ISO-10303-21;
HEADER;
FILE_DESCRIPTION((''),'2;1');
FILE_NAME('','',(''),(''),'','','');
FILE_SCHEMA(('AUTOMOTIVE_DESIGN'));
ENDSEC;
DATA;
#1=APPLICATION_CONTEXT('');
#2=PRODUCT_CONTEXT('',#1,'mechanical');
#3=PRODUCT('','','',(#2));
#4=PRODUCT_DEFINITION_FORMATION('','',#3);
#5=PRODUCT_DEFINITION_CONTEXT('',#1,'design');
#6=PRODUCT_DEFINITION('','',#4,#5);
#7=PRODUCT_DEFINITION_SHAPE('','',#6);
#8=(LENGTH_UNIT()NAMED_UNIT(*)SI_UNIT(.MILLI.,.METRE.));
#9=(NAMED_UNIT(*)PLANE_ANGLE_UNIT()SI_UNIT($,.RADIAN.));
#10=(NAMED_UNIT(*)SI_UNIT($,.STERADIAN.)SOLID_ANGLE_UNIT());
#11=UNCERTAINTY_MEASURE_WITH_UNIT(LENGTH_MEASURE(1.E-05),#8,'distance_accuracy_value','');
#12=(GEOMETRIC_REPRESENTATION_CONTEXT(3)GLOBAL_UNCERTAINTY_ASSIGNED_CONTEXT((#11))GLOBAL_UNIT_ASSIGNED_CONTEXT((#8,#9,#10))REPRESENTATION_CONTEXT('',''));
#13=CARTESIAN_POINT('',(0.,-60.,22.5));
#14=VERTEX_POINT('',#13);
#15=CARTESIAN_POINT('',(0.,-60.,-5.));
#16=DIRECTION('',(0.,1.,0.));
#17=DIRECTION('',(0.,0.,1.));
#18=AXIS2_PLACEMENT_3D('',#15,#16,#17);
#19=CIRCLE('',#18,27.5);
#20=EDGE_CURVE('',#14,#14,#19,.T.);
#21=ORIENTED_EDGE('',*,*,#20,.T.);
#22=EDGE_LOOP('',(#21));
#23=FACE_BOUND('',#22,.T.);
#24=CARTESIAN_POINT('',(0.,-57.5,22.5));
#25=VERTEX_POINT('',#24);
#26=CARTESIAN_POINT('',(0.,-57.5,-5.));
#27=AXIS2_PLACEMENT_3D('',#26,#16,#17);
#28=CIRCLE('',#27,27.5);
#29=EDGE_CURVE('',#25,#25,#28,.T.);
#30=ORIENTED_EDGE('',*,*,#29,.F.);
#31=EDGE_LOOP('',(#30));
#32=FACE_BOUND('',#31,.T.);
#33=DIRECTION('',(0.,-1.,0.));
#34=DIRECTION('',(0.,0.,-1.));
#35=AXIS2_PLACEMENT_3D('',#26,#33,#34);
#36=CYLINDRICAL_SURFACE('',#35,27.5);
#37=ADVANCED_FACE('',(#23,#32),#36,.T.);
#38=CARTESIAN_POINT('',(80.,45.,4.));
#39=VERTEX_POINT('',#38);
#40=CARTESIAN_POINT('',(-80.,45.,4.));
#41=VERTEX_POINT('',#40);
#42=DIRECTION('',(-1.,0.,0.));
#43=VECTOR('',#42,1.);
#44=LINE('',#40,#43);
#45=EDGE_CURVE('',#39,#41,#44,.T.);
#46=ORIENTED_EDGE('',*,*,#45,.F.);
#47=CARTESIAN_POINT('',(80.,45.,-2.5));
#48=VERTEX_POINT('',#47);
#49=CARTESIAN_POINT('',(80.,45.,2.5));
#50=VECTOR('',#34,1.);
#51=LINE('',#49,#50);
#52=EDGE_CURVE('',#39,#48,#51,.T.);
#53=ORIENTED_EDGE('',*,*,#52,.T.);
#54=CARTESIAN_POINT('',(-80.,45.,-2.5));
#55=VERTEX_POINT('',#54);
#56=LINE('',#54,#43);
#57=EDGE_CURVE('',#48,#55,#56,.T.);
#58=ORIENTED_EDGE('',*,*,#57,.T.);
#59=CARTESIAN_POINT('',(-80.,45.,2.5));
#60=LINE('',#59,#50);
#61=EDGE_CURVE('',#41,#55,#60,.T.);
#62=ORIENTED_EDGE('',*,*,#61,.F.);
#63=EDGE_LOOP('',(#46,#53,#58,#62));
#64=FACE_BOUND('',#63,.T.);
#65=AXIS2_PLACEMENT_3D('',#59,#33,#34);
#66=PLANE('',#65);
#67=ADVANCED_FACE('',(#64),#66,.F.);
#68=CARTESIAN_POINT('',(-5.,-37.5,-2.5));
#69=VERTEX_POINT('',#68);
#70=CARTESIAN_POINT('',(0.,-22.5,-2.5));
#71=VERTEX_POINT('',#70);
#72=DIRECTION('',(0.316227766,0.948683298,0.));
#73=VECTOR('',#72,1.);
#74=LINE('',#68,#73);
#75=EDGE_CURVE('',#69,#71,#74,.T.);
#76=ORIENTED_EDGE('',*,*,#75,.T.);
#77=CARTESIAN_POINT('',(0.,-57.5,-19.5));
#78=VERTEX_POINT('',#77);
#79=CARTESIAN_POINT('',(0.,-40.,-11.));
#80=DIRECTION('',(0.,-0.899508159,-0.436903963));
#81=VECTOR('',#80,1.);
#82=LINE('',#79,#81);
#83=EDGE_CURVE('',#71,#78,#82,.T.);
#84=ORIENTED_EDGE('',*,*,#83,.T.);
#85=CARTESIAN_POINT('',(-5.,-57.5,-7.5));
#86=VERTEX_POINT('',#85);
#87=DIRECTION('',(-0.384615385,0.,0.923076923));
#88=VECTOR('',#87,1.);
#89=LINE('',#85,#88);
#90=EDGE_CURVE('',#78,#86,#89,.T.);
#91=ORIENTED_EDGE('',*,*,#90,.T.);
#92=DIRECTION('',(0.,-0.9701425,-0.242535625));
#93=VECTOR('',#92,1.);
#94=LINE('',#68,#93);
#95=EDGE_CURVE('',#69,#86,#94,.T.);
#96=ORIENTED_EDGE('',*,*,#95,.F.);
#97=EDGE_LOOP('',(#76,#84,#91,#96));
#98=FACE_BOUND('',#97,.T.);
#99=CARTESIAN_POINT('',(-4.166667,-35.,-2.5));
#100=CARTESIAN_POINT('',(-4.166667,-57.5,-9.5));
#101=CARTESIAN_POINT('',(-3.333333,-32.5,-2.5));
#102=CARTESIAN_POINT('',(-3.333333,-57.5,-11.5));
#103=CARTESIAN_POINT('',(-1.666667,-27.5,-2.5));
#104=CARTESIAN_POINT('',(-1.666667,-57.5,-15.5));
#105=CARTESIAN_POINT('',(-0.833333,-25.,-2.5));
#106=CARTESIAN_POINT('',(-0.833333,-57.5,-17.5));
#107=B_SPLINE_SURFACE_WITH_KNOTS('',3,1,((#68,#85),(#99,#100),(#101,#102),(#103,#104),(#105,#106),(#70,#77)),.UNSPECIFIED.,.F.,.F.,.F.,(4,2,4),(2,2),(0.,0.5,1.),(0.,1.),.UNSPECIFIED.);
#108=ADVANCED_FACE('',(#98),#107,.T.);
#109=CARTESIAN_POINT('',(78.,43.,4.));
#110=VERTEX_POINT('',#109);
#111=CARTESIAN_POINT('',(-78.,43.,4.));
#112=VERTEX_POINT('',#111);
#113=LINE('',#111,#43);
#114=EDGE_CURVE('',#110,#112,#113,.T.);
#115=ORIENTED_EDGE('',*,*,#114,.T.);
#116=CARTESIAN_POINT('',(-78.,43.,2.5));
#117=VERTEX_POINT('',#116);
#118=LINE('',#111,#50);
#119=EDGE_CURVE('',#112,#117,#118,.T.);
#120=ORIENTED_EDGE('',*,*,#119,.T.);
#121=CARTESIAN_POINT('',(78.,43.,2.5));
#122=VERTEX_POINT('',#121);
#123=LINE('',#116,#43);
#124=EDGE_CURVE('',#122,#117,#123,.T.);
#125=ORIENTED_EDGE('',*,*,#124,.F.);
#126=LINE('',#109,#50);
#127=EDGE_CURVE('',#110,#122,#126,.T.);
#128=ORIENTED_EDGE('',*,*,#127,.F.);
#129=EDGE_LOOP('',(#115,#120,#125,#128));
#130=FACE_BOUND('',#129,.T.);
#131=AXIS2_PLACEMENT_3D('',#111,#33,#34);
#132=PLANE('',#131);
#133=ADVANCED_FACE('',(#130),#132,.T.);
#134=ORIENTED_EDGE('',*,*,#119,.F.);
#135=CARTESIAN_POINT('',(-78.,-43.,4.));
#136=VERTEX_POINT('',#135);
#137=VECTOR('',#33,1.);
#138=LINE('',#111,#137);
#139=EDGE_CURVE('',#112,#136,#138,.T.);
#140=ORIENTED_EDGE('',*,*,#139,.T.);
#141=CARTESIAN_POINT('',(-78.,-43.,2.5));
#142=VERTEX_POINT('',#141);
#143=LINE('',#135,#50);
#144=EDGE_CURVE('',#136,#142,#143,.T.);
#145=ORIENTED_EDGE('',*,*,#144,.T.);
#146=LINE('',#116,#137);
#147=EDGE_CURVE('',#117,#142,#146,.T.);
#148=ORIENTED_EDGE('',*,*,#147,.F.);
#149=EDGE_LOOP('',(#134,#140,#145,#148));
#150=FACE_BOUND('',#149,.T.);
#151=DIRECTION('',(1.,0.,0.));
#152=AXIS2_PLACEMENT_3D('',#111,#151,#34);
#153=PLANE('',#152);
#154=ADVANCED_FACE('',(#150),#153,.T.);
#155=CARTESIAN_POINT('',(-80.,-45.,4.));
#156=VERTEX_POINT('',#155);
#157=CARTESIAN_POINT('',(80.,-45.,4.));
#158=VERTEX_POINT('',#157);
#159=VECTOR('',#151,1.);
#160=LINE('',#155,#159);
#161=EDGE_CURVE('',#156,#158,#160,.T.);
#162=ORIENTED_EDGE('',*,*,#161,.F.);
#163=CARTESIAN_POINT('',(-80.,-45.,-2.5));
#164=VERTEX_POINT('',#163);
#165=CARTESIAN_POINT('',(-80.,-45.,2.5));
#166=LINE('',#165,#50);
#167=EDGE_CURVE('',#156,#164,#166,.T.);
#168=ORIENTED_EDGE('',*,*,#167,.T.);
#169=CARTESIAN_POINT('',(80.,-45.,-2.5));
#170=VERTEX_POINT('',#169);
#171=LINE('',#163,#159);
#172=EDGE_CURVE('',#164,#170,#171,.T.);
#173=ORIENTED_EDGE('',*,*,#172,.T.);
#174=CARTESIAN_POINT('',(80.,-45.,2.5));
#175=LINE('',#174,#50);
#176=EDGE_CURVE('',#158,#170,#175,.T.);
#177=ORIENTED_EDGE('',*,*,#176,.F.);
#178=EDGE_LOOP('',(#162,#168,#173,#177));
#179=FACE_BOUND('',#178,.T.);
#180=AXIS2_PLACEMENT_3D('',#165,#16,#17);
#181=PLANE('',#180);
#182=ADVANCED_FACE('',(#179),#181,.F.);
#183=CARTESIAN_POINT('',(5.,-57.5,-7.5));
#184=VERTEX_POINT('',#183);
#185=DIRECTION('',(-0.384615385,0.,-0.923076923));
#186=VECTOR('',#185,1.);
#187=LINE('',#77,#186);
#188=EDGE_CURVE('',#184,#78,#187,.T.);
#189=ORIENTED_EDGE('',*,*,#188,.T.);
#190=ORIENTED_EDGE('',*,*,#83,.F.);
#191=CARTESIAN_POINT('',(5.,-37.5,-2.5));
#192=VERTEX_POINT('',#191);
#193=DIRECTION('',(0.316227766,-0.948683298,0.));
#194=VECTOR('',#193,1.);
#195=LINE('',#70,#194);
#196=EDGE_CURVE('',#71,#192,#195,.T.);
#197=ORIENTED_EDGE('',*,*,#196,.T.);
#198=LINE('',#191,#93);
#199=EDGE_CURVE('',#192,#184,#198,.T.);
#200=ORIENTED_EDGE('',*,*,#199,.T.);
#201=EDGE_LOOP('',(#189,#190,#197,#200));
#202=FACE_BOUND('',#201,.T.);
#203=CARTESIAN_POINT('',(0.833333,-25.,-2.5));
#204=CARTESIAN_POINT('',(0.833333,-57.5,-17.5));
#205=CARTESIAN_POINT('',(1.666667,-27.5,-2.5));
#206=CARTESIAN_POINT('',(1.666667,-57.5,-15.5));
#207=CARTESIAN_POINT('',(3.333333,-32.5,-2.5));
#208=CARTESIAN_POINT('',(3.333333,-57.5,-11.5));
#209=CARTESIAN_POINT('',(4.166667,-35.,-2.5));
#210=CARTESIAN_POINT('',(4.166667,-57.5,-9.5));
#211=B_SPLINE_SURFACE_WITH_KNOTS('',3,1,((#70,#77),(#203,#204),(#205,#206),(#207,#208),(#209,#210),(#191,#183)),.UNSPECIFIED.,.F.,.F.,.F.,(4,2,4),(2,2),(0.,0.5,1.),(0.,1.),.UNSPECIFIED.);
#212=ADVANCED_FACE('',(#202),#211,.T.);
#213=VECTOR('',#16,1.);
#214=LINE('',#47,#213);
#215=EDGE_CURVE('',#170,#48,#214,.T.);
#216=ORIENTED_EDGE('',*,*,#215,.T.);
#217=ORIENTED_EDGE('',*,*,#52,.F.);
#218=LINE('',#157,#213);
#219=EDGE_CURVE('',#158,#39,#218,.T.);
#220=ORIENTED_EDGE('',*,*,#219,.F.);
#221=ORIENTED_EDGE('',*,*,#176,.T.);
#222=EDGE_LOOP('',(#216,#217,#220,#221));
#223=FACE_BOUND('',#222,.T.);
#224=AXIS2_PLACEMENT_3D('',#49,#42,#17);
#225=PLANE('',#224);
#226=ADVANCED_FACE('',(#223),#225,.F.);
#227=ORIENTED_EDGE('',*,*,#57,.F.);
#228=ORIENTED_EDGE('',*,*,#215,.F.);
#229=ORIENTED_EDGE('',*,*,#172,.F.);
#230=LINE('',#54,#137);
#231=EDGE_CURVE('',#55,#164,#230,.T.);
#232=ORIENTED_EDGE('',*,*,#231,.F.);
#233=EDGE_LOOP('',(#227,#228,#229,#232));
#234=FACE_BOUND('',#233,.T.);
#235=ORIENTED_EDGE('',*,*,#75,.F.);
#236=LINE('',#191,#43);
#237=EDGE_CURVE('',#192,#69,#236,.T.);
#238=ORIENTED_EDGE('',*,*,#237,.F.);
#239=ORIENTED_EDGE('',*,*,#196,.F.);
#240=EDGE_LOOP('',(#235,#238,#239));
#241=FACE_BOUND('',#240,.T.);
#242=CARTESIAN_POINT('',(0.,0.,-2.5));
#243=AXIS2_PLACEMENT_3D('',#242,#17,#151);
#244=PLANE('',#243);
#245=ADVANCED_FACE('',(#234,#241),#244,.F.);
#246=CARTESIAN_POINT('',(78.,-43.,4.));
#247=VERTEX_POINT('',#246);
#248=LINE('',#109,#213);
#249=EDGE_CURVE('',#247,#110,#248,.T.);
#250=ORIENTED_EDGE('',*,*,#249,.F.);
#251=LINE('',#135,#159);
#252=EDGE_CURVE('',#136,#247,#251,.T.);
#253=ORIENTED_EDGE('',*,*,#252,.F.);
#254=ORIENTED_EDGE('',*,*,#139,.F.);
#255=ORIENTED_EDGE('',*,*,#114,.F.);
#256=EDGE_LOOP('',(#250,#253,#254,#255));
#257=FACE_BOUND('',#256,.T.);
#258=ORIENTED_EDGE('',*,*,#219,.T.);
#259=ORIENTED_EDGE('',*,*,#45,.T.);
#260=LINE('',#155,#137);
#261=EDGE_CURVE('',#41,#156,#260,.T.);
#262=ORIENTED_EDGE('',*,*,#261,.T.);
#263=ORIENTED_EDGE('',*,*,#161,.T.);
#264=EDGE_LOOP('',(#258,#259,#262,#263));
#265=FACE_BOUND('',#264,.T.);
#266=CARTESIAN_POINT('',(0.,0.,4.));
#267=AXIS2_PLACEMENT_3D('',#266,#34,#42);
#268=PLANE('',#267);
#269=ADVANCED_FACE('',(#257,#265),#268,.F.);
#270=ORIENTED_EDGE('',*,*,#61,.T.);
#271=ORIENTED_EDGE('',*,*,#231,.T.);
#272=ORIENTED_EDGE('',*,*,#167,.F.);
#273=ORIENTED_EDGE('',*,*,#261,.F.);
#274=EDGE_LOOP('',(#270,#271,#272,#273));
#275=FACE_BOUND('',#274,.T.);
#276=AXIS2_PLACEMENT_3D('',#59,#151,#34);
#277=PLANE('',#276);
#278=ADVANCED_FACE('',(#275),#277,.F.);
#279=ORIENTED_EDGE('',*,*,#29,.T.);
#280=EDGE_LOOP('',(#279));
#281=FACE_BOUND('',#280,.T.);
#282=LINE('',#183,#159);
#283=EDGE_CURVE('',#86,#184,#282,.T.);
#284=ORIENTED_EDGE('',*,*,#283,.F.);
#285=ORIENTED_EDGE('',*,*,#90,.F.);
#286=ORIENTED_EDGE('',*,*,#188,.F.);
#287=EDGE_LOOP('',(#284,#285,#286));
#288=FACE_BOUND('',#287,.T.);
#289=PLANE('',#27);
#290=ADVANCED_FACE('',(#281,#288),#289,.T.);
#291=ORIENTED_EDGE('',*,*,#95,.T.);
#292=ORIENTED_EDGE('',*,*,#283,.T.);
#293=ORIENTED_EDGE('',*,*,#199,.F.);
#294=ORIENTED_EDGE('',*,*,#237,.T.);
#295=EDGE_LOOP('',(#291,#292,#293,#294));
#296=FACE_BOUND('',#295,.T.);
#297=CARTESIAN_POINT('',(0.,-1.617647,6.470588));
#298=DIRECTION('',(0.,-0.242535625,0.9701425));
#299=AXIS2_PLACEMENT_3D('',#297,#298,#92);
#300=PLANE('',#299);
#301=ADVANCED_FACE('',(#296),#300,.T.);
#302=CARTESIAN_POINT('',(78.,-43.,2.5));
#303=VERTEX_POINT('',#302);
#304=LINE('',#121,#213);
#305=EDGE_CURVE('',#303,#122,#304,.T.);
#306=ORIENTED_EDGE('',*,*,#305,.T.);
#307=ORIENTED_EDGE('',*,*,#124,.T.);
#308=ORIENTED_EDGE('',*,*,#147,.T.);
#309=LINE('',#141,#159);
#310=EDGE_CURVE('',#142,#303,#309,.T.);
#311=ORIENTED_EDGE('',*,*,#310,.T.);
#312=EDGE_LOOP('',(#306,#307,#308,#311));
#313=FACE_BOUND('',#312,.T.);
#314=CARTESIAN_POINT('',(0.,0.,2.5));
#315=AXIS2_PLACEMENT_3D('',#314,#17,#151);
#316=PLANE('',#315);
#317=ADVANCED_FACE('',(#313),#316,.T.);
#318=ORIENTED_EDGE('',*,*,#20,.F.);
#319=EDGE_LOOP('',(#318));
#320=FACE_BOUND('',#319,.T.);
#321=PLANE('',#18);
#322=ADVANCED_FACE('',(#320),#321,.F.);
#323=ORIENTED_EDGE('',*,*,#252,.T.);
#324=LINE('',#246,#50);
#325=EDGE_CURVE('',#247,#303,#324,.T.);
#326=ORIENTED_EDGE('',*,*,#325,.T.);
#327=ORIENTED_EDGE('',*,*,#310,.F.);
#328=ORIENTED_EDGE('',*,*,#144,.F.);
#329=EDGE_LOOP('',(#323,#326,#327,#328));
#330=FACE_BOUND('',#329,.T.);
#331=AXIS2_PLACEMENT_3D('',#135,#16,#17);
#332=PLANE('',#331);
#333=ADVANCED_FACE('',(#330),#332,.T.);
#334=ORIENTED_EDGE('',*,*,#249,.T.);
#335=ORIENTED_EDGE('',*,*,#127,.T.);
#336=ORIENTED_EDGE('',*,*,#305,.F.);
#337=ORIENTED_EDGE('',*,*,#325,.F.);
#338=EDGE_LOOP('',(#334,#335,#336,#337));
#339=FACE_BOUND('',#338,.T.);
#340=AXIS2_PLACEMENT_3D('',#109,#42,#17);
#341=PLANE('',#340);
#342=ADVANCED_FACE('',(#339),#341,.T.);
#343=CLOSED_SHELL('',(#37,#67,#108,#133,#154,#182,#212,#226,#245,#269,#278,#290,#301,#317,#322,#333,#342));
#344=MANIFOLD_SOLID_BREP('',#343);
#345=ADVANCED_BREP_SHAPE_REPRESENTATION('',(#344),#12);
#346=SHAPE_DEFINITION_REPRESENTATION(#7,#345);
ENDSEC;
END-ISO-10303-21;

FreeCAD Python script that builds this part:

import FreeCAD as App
import Part
import Sketcher
from FreeCAD import Vector


def add_polygon(sketch, points):
    """Adds a closed chain of lines whose ends are joined by coincident constraints."""
    first, n = sketch.GeometryCount, len(points)
    for a, b in zip(points, points[1:] + points[:1]):
        sketch.addGeometry(Part.LineSegment(App.Vector(*a, 0), App.Vector(*b, 0)), False)
    for i in range(n):
        sketch.addConstraint(Sketcher.Constraint("Coincident", first + i, 2, first + (i + 1) % n, 1))

doc = App.newDocument("Part")
body = doc.addObject("PartDesign::Body", "Body")

# Sketch on XY plane
sketch1 = doc.addObject("Sketcher::SketchObject", "Sketch")
body.addObject(sketch1)
sketch1.AttachmentSupport = (doc.XY_Plane, [""])
sketch1.MapMode = "FlatFace"
add_polygon(sketch1, [(-80, 45), (-80, -45), (80, -45), (80, 45)])  # lines 0-3
sketch1.addConstraint(Sketcher.Constraint("Vertical", 0))
sketch1.addConstraint(Sketcher.Constraint("Horizontal", 1))
sketch1.addConstraint(Sketcher.Constraint("Vertical", 2))
sketch1.addConstraint(Sketcher.Constraint("Horizontal", 3))
sketch1.addConstraint(Sketcher.Constraint("Symmetric", 0, 2, 2, 2, -1, 1))
sketch1.addConstraint(Sketcher.Constraint("DistanceX", 1, 1, 1, 2, 160.0))
sketch1.addConstraint(Sketcher.Constraint("DistanceY", 0, 2, 0, 1, 90.0))
pad1 = doc.addObject("PartDesign::Pad", "Pad")
body.addObject(pad1)
pad1.Profile = sketch1
pad1.Length = 5
pad1.Midplane = True

# Sketch on XY plane
sketch2 = doc.addObject("Sketcher::SketchObject", "Sketch001")
body.addObject(sketch2)
sketch2.AttachmentSupport = (doc.XY_Plane, [""])
sketch2.MapMode = "FlatFace"
sketch2.AttachmentOffset = App.Placement(Vector(0, 0, 2.5), App.Rotation())
add_polygon(sketch2, [(-80, 45), (-80, -45), (80, -45), (80, 45)])  # lines 0-3
add_polygon(sketch2, [(78, -43), (-78, -43), (-78, 43), (78, 43)])  # lines 4-7
sketch2.addConstraint(Sketcher.Constraint("Vertical", 0))
sketch2.addConstraint(Sketcher.Constraint("Horizontal", 1))
sketch2.addConstraint(Sketcher.Constraint("Vertical", 2))
sketch2.addConstraint(Sketcher.Constraint("Horizontal", 3))
sketch2.addConstraint(Sketcher.Constraint("Horizontal", 4))
sketch2.addConstraint(Sketcher.Constraint("Vertical", 5))
sketch2.addConstraint(Sketcher.Constraint("Horizontal", 6))
sketch2.addConstraint(Sketcher.Constraint("Vertical", 7))
sketch2.addConstraint(Sketcher.Constraint("Symmetric", 0, 2, 2, 2, -1, 1))
sketch2.addConstraint(Sketcher.Constraint("Symmetric", 4, 2, 6, 2, -1, 1))
sketch2.addConstraint(Sketcher.Constraint("DistanceX", 1, 1, 1, 2, 160.0))
sketch2.addConstraint(Sketcher.Constraint("DistanceX", 4, 2, 4, 1, 156.0))
sketch2.addConstraint(Sketcher.Constraint("DistanceY", 0, 2, 0, 1, 90.0))
sketch2.addConstraint(Sketcher.Constraint("DistanceY", 5, 1, 5, 2, 86.0))
pad2 = doc.addObject("PartDesign::Pad", "Pad001")
body.addObject(pad2)
pad2.Profile = sketch2
pad2.Length = 1.5
body2 = doc.addObject("PartDesign::Body", "Body001")

# Sketch on XZ plane
sketch3 = doc.addObject("Sketcher::SketchObject", "Sketch002")
body2.addObject(sketch3)
sketch3.AttachmentSupport = (doc.getObject("XZ_Plane001"), [""])
sketch3.MapMode = "FlatFace"
sketch3.AttachmentOffset = App.Placement(Vector(0, 0, 60), App.Rotation())
sketch3.addGeometry(Part.Circle(Vector(0, -5, 0), Vector(0, 0, 1), 28), False)
sketch3.addConstraint(Sketcher.Constraint("PointOnObject", 0, 3, -2))
sketch3.addConstraint(Sketcher.Constraint("Diameter", 0, 55.0))
sketch3.addConstraint(Sketcher.Constraint("DistanceY", 0, 3, -1, 1, 5.0))
pad3 = doc.addObject("PartDesign::Pad", "Pad002")
body2.addObject(pad3)
pad3.Profile = sketch3
pad3.Length = 2.5
pad3.Reversed = True
body.AllowCompound = True
doc.recompute()

boolean = doc.addObject("PartDesign::Boolean", "Boolean")
body.addObject(boolean)
boolean.Type = "Fuse"
boolean.addObjects([body2])

# Sketch on XY plane
sketch4 = doc.addObject("Sketcher::SketchObject", "Sketch003")
body.addObject(sketch4)
sketch4.AttachmentSupport = (doc.XY_Plane, [""])
sketch4.MapMode = "FlatFace"
sketch4.AttachmentOffset = App.Placement(Vector(0, 0, -2.5), App.Rotation())
add_polygon(sketch4, [(0, -22), (5, -38), (-5, -38)])  # lines 0-2
sketch4.addConstraint(Sketcher.Constraint("Horizontal", 1))
sketch4.addConstraint(Sketcher.Constraint("PointOnObject", 2, 2, -2))
sketch4.addConstraint(Sketcher.Constraint("Equal", 0, 2))
sketch4.addConstraint(Sketcher.Constraint("DistanceX", 1, 2, 1, 1, 10.0))
sketch4.addConstraint(Sketcher.Constraint("DistanceY", 0, 2, 2, 2, 15.0))
sketch4.addConstraint(Sketcher.Constraint("DistanceY", 0, 2, -1, 1, 37.5))

# Sketch on XZ plane
sketch5 = doc.addObject("Sketcher::SketchObject", "Sketch004")
body.addObject(sketch5)
sketch5.AttachmentSupport = (doc.XZ_Plane, [""])
sketch5.MapMode = "FlatFace"
sketch5.AttachmentOffset = App.Placement(Vector(0, 0, 57.5), App.Rotation())
add_polygon(sketch5, [(0, -20), (-5, -8), (5, -8)])  # lines 0-2
sketch5.addConstraint(Sketcher.Constraint("Horizontal", 1))
sketch5.addConstraint(Sketcher.Constraint("PointOnObject", 2, 2, -2))
sketch5.addConstraint(Sketcher.Constraint("Equal", 0, 2))
sketch5.addConstraint(Sketcher.Constraint("DistanceX", 1, 1, 1, 2, 10.0))
sketch5.addConstraint(Sketcher.Constraint("Distance", 0, 13.0))
sketch5.addConstraint(Sketcher.Constraint("DistanceY", 0, 2, -1, 1, 7.5))

additiveloft = doc.addObject("PartDesign::AdditiveLoft", "AdditiveLoft")
body.addObject(additiveloft)
additiveloft.Profile = sketch4
additiveloft.Sections = [sketch5]

doc.recompute()
